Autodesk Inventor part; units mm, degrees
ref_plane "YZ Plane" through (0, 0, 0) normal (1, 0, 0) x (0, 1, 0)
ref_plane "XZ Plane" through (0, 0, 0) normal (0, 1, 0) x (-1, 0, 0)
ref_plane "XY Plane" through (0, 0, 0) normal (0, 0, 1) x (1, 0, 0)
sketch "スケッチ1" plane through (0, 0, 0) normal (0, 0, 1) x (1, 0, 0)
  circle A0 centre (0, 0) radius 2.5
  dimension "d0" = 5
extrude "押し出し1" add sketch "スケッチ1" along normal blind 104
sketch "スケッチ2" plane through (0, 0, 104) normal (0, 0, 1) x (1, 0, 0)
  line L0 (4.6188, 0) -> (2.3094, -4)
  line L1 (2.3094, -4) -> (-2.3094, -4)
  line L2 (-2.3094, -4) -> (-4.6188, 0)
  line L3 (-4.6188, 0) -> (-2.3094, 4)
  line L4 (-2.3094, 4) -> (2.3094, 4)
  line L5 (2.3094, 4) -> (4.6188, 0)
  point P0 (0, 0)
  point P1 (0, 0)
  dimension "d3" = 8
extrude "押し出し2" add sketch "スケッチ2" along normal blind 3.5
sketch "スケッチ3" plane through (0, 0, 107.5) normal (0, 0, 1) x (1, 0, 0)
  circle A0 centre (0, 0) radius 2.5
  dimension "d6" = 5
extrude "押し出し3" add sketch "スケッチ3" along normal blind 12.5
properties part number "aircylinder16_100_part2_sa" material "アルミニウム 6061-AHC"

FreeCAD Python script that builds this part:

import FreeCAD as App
import Part
import Sketcher
Q = App.Units.Quantity

doc = App.newDocument("Part")
body = doc.addObject("PartDesign::Body", "Body")

sketch1 = doc.addObject("Sketcher::SketchObject", "Sketch")
body.addObject(sketch1)
sketch1.AttachmentSupport = (doc.XY_Plane, [""])
sketch1.MapMode = "FlatFace"
sketch1.addGeometry(Part.Circle(App.Vector(0, 0, 0), App.Vector(0, 0, 1), 2.5), False)
sketch1.addConstraint(Sketcher.Constraint("Coincident", 0, 3, -1, 1))
sketch1.addConstraint(Sketcher.Constraint("Diameter", 0, 5.0))
pad1 = doc.addObject("PartDesign::Pad", "Pad")
body.addObject(pad1)
pad1.Profile = sketch1
pad1.Length = 104

sketch2 = doc.addObject("Sketcher::SketchObject", "Sketch001")
body.addObject(sketch2)
sketch2.AttachmentSupport = (doc.XY_Plane, [""])
sketch2.MapMode = "FlatFace"
sketch2.AttachmentOffset = App.Placement(App.Vector(0, 0, 104), App.Rotation())
sketch2.addGeometry(Part.LineSegment(App.Vector(2.3, -4, 0), App.Vector(4.6, 0, 0)), False)
sketch2.addGeometry(Part.LineSegment(App.Vector(4.6, 0, 0), App.Vector(2.3, 4, 0)), False)
sketch2.addGeometry(Part.LineSegment(App.Vector(2.3, 4, 0), App.Vector(-2.3, 4, 0)), False)
sketch2.addGeometry(Part.LineSegment(App.Vector(-2.3, 4, 0), App.Vector(-4.6, 0, 0)), False)
sketch2.addGeometry(Part.LineSegment(App.Vector(-4.6, 0, 0), App.Vector(-2.3, -4, 0)), False)
sketch2.addGeometry(Part.LineSegment(App.Vector(-2.3, -4, 0), App.Vector(2.3, -4, 0)), False)
sketch2.addConstraint(Sketcher.Constraint("Coincident", 0, 2, 1, 1))
sketch2.addConstraint(Sketcher.Constraint("Coincident", 1, 2, 2, 1))
sketch2.addConstraint(Sketcher.Constraint("Coincident", 2, 2, 3, 1))
sketch2.addConstraint(Sketcher.Constraint("Coincident", 3, 2, 4, 1))
sketch2.addConstraint(Sketcher.Constraint("Coincident", 4, 2, 5, 1))
sketch2.addConstraint(Sketcher.Constraint("Coincident", 5, 2, 0, 1))
sketch2.addConstraint(Sketcher.Constraint("Horizontal", 2))
sketch2.addConstraint(Sketcher.Constraint("Horizontal", 5))
sketch2.addConstraint(Sketcher.Constraint("Symmetric", 0, 2, 3, 2, -1, 1))
sketch2.addConstraint(Sketcher.Constraint("Symmetric", 1, 2, 4, 2, -1, 1))
sketch2.addConstraint(Sketcher.Constraint("PointOnObject", 0, 2, -1))
sketch2.addConstraint(Sketcher.Constraint("Parallel", 0, 3))
sketch2.addConstraint(Sketcher.Constraint("Vertical", 2, 2, 4, 2))
sketch2.addConstraint(Sketcher.Constraint("DistanceY", 4, 2, 2, 2, 8.0))
sketch2.addConstraint(Sketcher.Constraint("Angle", 0, Q("60 deg")))
sketch2.addConstraint(Sketcher.Constraint("DistanceX", 2, 2, 2, 1, 4.6188))
pad2 = doc.addObject("PartDesign::Pad", "Pad001")
body.addObject(pad2)
pad2.Profile = sketch2
pad2.Length = 3.5

sketch3 = doc.addObject("Sketcher::SketchObject", "Sketch002")
body.addObject(sketch3)
sketch3.AttachmentSupport = (doc.XY_Plane, [""])
sketch3.MapMode = "FlatFace"
sketch3.AttachmentOffset = App.Placement(App.Vector(0, 0, 107.5), App.Rotation())
sketch3.addGeometry(Part.Circle(App.Vector(0, 0, 0), App.Vector(0, 0, 1), 2.5), False)
sketch3.addConstraint(Sketcher.Constraint("Coincident", 0, 3, -1, 1))
sketch3.addConstraint(Sketcher.Constraint("Diameter", 0, 5.0))
pad3 = doc.addObject("PartDesign::Pad", "Pad002")
body.addObject(pad3)
pad3.Profile = sketch3
pad3.Length = 12.5

doc.recompute()
